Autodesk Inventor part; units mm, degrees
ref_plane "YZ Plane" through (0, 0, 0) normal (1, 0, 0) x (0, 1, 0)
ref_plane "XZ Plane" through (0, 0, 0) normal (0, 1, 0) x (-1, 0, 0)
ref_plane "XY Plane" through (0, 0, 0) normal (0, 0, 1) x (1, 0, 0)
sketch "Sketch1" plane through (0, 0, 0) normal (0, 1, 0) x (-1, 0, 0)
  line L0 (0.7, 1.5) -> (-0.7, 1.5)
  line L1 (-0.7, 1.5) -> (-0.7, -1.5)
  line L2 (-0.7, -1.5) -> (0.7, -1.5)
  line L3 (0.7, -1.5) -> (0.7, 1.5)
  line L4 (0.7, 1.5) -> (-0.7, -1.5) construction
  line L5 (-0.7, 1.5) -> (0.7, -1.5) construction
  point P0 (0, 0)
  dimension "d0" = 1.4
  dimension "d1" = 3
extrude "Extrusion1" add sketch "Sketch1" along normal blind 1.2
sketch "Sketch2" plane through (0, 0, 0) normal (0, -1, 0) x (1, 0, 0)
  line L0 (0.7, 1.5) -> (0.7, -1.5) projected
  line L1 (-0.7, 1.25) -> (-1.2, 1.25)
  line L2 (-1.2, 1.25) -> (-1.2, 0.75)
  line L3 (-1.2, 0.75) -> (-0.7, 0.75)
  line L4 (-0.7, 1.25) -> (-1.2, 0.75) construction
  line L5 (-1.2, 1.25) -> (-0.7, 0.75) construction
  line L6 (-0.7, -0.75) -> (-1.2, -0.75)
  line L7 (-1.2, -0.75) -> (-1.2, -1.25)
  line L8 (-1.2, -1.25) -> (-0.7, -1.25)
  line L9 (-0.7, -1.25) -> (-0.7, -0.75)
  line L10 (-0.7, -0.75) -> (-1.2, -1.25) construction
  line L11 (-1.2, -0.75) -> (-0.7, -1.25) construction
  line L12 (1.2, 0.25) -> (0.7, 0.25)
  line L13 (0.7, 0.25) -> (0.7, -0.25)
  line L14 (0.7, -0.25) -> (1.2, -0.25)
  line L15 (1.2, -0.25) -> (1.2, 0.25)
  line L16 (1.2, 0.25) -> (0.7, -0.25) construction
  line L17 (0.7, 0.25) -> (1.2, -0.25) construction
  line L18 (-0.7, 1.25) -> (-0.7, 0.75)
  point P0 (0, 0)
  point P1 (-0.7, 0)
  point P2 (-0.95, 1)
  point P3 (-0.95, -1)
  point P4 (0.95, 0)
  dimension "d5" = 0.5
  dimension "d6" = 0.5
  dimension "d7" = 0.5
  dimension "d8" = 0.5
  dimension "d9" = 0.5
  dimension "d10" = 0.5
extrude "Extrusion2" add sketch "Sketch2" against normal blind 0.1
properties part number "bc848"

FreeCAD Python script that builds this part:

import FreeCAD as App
import Part
import Sketcher
from FreeCAD import Vector
Q = App.Units.Quantity


def add_polygon(sketch, points):
    """Adds a closed chain of lines whose ends are joined by coincident constraints."""
    first, n = sketch.GeometryCount, len(points)
    for a, b in zip(points, points[1:] + points[:1]):
        sketch.addGeometry(Part.LineSegment(App.Vector(*a, 0), App.Vector(*b, 0)), False)
    for i in range(n):
        sketch.addConstraint(Sketcher.Constraint("Coincident", first + i, 2, first + (i + 1) % n, 1))

doc = App.newDocument("Part")
body = doc.addObject("PartDesign::Body", "Body")

sketch1 = body.newObject("Sketcher::SketchObject", "Sketch")
sketch1.AttachmentSupport = (doc.getObject("XZ_Plane"), [""])
sketch1.MapMode = "FlatFace"
add_polygon(sketch1, [(-0.7, -1.5), (-0.7, 1.5), (0.7, 1.5), (0.7, -1.5)])
sketch1.addConstraint([
    Sketcher.Constraint("Vertical", 0),
    Sketcher.Constraint("Horizontal", 1),
    Sketcher.Constraint("Vertical", 2),
    Sketcher.Constraint("Horizontal", 3),
    Sketcher.Constraint("Symmetric", 0, 2, 2, 2, -1, 1),
    Sketcher.Constraint("DistanceY", 0, 1, 0, 2, Q("3 mm")),
    Sketcher.Constraint("DistanceX", 1, 1, 1, 2, Q("1.4 mm")),
])
pad1 = body.newObject("PartDesign::Pad", "Pad")
pad1.Profile = sketch1
pad1.Length = 1.2
pad1.Reversed = True

sketch2 = body.newObject("Sketcher::SketchObject", "Sketch001")
sketch2.AttachmentSupport = (doc.getObject("XZ_Plane"), [""])
sketch2.MapMode = "FlatFace"
add_polygon(sketch2, [(1.2, 0.2), (0.7, 0.2), (0.7, -0.2), (1.2, -0.2)])
add_polygon(sketch2, [(-0.7, 0.8), (-0.7, 1.2), (-1.2, 1.2), (-1.2, 0.8)])
add_polygon(sketch2, [(-0.7, -1.2), (-0.7, -0.8), (-1.2, -0.8), (-1.2, -1.2)])
sketch2.addConstraint([
    Sketcher.Constraint("Horizontal", 0),
    Sketcher.Constraint("Vertical", 1),
    Sketcher.Constraint("Horizontal", 2),
    Sketcher.Constraint("Vertical", 3),
    Sketcher.Constraint("Vertical", 4),
    Sketcher.Constraint("Horizontal", 5),
    Sketcher.Constraint("Vertical", 6),
    Sketcher.Constraint("Horizontal", 7),
    Sketcher.Constraint("Vertical", 8),
    Sketcher.Constraint("Horizontal", 9),
    Sketcher.Constraint("Vertical", 10),
    Sketcher.Constraint("Horizontal", 11),
    Sketcher.Constraint("Symmetric", 7, 2, 8, 2, -1),
    Sketcher.Constraint("Symmetric", 5, 2, 10, 2, -1),
    Sketcher.Constraint("Equal", 2, 5),
    Sketcher.Constraint("Equal", 11, 1),
    Sketcher.Constraint("Equal", 3, 4),
    Sketcher.Constraint("DistanceX", 0, 2, 0, 1, Q("0.5 mm")),
    Sketcher.Constraint("DistanceY", 0, 2, 6, 2, Q("0.5 mm")),
    Sketcher.Constraint("DistanceY", 8, 2, 1, 2, Q("0.5 mm")),
    Sketcher.Constraint("DistanceX", -1, 1, 0, 2, Q("0.7 mm")),
    Sketcher.Constraint("DistanceX", 4, 2, -1, 1, Q("0.7 mm")),
])
pad2 = body.newObject("PartDesign::Pad", "Pad001")
pad2.Profile = sketch2
pad2.Length = 0.1
pad2.Reversed = True

doc.recompute()
